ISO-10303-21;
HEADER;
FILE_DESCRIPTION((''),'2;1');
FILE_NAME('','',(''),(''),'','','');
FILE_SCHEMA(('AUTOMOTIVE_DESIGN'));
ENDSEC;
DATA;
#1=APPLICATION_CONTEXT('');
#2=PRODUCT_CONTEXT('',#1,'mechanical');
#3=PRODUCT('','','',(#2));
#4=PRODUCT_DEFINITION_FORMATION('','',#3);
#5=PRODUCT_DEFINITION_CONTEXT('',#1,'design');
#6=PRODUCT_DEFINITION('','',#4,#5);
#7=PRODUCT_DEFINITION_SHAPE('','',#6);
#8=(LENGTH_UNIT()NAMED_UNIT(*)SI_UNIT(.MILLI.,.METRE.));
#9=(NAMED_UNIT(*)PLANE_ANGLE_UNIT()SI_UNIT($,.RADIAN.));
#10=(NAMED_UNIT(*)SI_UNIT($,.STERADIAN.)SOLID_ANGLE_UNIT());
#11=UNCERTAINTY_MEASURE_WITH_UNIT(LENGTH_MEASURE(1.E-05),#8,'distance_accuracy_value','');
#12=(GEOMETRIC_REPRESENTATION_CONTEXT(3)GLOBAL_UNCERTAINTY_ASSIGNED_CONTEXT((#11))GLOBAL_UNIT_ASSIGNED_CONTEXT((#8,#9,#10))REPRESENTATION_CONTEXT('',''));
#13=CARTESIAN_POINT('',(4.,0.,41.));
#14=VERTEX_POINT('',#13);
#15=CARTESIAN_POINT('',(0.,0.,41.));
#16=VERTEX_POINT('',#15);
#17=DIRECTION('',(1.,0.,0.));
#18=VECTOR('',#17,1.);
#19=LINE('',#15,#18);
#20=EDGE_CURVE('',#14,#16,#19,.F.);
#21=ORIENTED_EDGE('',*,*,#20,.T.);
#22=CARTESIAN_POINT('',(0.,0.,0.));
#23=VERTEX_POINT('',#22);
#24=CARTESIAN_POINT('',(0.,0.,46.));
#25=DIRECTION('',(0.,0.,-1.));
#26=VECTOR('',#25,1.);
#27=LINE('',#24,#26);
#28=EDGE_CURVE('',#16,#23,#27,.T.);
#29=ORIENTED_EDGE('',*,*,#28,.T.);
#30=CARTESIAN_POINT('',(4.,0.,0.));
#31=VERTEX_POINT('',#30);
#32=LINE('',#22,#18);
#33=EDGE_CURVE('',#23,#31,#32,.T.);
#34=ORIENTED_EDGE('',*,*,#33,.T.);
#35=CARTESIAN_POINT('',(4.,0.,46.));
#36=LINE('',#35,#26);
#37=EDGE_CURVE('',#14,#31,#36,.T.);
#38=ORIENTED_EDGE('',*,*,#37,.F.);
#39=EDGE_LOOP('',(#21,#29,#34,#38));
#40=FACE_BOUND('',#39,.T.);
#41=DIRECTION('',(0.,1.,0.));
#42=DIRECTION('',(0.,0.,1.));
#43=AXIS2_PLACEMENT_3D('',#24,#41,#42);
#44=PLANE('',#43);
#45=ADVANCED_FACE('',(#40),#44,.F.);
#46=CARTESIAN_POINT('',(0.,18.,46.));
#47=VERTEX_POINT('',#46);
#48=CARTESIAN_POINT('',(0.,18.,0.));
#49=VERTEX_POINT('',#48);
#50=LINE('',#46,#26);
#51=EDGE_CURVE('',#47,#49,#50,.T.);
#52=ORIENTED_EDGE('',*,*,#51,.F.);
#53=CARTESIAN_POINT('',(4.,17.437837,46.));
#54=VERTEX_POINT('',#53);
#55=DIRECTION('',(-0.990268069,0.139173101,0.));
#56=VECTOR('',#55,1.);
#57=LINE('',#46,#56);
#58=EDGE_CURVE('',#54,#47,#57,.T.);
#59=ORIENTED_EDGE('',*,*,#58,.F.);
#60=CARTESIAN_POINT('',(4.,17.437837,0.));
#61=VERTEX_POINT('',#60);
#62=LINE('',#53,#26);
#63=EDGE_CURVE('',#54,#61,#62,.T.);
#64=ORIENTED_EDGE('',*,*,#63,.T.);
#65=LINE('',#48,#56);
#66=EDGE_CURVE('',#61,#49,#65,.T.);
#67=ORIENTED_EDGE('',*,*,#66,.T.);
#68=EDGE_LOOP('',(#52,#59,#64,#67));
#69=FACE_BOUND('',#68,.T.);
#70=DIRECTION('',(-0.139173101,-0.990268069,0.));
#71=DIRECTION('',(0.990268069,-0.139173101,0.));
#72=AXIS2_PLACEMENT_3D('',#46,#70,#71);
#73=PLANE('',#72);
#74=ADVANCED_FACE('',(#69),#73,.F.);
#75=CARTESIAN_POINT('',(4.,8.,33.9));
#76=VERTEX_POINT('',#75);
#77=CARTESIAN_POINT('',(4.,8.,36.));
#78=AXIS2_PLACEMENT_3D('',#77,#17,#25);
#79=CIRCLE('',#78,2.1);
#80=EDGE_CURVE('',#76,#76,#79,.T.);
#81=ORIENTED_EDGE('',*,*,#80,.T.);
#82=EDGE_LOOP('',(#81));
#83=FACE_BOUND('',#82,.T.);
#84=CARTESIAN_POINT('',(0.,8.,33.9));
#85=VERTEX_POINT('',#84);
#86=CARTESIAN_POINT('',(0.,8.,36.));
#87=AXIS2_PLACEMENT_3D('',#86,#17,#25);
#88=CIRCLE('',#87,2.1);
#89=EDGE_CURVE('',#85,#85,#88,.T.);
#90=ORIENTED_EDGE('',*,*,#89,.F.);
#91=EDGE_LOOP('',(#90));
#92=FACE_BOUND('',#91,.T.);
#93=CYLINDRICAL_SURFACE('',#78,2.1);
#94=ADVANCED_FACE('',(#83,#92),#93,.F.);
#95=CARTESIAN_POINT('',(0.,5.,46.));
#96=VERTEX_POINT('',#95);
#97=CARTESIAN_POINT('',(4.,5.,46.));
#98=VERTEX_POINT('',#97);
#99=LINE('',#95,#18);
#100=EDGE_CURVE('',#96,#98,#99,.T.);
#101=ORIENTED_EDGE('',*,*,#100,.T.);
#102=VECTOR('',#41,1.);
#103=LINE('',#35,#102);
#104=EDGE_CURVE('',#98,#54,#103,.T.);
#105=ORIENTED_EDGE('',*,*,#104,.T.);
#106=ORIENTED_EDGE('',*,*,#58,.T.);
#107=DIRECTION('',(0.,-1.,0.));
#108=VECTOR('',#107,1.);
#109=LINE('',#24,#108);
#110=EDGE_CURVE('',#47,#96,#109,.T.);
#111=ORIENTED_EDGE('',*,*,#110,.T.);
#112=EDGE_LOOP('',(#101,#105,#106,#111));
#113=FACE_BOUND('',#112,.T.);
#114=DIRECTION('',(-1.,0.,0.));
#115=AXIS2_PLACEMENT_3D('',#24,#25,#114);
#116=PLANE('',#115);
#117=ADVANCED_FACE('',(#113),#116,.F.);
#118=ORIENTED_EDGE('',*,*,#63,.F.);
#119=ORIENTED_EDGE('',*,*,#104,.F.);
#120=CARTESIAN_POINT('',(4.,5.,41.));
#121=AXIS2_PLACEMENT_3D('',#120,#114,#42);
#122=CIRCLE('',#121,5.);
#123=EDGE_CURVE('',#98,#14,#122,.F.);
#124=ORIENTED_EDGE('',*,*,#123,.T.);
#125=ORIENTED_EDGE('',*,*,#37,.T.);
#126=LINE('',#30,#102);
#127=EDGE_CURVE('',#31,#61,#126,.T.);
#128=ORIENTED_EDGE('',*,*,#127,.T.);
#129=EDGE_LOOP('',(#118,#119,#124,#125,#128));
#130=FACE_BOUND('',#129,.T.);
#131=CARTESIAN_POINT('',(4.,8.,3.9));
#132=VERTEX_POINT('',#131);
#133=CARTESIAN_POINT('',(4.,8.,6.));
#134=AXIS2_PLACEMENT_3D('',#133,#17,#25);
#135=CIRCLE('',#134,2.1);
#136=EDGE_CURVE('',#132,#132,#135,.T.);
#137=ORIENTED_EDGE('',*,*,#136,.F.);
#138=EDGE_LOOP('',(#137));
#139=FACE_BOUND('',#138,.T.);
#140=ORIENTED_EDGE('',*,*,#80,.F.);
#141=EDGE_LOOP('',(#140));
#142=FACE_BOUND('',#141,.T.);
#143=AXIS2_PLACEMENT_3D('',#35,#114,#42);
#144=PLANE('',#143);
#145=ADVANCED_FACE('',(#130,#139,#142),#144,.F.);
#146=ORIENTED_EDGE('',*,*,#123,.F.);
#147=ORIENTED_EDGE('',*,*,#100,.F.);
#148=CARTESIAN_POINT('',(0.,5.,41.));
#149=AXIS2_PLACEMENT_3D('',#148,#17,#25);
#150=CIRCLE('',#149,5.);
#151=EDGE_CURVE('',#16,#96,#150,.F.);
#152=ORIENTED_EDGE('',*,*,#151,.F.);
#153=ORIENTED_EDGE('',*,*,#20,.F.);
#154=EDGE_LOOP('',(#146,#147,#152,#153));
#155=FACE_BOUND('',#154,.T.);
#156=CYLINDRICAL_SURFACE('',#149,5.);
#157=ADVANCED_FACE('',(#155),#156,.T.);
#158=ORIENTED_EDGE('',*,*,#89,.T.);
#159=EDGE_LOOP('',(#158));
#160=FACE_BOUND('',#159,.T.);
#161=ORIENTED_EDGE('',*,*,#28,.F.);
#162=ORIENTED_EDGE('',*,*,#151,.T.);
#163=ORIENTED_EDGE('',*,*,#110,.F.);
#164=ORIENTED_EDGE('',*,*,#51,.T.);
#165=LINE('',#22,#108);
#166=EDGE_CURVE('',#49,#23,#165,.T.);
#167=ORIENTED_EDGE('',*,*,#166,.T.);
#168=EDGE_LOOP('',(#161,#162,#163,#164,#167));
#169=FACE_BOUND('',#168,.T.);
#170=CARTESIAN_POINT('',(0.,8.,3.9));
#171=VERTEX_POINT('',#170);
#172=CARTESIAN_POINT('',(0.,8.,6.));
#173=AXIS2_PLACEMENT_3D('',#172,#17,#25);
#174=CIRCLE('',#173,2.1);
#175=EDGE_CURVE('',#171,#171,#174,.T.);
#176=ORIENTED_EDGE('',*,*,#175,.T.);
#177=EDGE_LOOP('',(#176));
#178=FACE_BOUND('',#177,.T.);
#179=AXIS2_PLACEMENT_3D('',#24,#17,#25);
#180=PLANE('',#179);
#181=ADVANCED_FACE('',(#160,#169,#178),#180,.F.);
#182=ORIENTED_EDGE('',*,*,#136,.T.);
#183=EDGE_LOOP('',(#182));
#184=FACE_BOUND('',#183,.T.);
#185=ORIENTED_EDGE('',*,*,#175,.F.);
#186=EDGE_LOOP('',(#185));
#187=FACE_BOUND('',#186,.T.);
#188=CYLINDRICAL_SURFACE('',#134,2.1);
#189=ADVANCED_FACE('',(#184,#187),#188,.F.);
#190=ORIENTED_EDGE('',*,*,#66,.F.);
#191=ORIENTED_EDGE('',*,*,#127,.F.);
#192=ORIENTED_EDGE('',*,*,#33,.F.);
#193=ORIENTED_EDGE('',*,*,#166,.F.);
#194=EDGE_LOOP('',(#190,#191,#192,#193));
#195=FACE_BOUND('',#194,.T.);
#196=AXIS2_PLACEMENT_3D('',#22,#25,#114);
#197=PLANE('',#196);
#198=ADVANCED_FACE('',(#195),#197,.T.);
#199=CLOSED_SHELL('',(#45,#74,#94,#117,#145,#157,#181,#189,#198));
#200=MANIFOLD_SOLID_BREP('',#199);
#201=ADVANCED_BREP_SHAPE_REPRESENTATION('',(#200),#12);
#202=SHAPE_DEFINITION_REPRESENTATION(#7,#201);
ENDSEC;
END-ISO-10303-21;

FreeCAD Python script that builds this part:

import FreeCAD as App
import Part
import Sketcher

V = App.Vector
Q = App.Units.Quantity


def edges_at(feature, points):
    """Names of the edges that pass closest to the given points."""
    edges = feature.Shape.Edges
    near = lambda p: min(range(len(edges)), key=lambda i: edges[i].distToShape(Part.Vertex(*p))[0])
    return sorted({f"Edge{near(p) + 1}" for p in points})

doc = App.newDocument("Part")
body = doc.addObject("PartDesign::Body", "Body")

# Sketch on XY plane
sketch1 = doc.addObject("Sketcher::SketchObject", "Sketch")
body.addObject(sketch1)
sketch1.AttachmentSupport = (doc.XY_Plane, [""])
sketch1.MapMode = "FlatFace"
sketch1.addGeometry(Part.LineSegment(V(0, 0, 0), V(4, 0, 0)), False)
sketch1.addGeometry(Part.LineSegment(V(4, 0, 0), V(4, 17.4, 0)), False)
sketch1.addGeometry(Part.LineSegment(V(4, 17.4, 0), V(0, 18, 0)), False)
sketch1.addGeometry(Part.LineSegment(V(0, 18, 0), V(0, 0, 0)), False)
sketch1.addConstraint(Sketcher.Constraint("Coincident", 0, 2, 1, 1))
sketch1.addConstraint(Sketcher.Constraint("Coincident", 1, 2, 2, 1))
sketch1.addConstraint(Sketcher.Constraint("Coincident", 2, 2, 3, 1))
sketch1.addConstraint(Sketcher.Constraint("Coincident", 3, 2, 0, 1))
sketch1.addConstraint(Sketcher.Constraint("Horizontal", 0))
sketch1.addConstraint(Sketcher.Constraint("Vertical", 1))
sketch1.addConstraint(Sketcher.Constraint("Vertical", 3))
sketch1.addConstraint(Sketcher.Constraint("Coincident", 3, 2, -1, 1))
sketch1.addConstraint(Sketcher.Constraint("DistanceX", 0, 1, 0, 2, 4.0))
sketch1.addConstraint(Sketcher.Constraint("DistanceY", 3, 2, 3, 1, 18.0))
sketch1.addConstraint(Sketcher.Constraint("Angle", 2, Q("172 deg")))
pad1 = doc.addObject("PartDesign::Pad", "Pad")
body.addObject(pad1)
pad1.Profile = sketch1
pad1.Length = 46
doc.recompute()

fillet = doc.addObject("PartDesign::Fillet", "Fillet")
body.addObject(fillet)
fillet.Base = (pad1, edges_at(pad1, [(2, 0, 46)]))
fillet.Radius = 5

# Sketch on YZ plane
sketch2 = doc.addObject("Sketcher::SketchObject", "Sketch001")
body.addObject(sketch2)
sketch2.AttachmentSupport = (doc.YZ_Plane, [""])
sketch2.MapMode = "FlatFace"
sketch2.AttachmentOffset = App.Placement(V(0, 0, 4), App.Rotation())
sketch2.addGeometry(Part.Circle(V(8, 6, 0), V(0, 0, 1), 2.1), False)
sketch2.addGeometry(Part.Circle(V(8, 36, 0), V(0, 0, 1), 2.1), False)
sketch2.addConstraint(Sketcher.Constraint("Equal", 0, 1))
sketch2.addConstraint(Sketcher.Constraint("Vertical", 0, 3, 1, 3))
sketch2.addConstraint(Sketcher.Constraint("Diameter", 0, 4.2))
sketch2.addConstraint(Sketcher.Constraint("DistanceX", -1, 1, 0, 3, 8.0))
sketch2.addConstraint(Sketcher.Constraint("DistanceY", -1, 1, 0, 3, 6.0))
sketch2.addConstraint(Sketcher.Constraint("DistanceY", -1, 1, 1, 3, 36.0))
doc.recompute()
hole = doc.addObject("PartDesign::Hole", "Hole")
body.addObject(hole)
hole.Profile = sketch2
hole.ThreadType = "None"
hole.Diameter = 4.2
hole.DepthType = "ThroughAll"

doc.recompute()
